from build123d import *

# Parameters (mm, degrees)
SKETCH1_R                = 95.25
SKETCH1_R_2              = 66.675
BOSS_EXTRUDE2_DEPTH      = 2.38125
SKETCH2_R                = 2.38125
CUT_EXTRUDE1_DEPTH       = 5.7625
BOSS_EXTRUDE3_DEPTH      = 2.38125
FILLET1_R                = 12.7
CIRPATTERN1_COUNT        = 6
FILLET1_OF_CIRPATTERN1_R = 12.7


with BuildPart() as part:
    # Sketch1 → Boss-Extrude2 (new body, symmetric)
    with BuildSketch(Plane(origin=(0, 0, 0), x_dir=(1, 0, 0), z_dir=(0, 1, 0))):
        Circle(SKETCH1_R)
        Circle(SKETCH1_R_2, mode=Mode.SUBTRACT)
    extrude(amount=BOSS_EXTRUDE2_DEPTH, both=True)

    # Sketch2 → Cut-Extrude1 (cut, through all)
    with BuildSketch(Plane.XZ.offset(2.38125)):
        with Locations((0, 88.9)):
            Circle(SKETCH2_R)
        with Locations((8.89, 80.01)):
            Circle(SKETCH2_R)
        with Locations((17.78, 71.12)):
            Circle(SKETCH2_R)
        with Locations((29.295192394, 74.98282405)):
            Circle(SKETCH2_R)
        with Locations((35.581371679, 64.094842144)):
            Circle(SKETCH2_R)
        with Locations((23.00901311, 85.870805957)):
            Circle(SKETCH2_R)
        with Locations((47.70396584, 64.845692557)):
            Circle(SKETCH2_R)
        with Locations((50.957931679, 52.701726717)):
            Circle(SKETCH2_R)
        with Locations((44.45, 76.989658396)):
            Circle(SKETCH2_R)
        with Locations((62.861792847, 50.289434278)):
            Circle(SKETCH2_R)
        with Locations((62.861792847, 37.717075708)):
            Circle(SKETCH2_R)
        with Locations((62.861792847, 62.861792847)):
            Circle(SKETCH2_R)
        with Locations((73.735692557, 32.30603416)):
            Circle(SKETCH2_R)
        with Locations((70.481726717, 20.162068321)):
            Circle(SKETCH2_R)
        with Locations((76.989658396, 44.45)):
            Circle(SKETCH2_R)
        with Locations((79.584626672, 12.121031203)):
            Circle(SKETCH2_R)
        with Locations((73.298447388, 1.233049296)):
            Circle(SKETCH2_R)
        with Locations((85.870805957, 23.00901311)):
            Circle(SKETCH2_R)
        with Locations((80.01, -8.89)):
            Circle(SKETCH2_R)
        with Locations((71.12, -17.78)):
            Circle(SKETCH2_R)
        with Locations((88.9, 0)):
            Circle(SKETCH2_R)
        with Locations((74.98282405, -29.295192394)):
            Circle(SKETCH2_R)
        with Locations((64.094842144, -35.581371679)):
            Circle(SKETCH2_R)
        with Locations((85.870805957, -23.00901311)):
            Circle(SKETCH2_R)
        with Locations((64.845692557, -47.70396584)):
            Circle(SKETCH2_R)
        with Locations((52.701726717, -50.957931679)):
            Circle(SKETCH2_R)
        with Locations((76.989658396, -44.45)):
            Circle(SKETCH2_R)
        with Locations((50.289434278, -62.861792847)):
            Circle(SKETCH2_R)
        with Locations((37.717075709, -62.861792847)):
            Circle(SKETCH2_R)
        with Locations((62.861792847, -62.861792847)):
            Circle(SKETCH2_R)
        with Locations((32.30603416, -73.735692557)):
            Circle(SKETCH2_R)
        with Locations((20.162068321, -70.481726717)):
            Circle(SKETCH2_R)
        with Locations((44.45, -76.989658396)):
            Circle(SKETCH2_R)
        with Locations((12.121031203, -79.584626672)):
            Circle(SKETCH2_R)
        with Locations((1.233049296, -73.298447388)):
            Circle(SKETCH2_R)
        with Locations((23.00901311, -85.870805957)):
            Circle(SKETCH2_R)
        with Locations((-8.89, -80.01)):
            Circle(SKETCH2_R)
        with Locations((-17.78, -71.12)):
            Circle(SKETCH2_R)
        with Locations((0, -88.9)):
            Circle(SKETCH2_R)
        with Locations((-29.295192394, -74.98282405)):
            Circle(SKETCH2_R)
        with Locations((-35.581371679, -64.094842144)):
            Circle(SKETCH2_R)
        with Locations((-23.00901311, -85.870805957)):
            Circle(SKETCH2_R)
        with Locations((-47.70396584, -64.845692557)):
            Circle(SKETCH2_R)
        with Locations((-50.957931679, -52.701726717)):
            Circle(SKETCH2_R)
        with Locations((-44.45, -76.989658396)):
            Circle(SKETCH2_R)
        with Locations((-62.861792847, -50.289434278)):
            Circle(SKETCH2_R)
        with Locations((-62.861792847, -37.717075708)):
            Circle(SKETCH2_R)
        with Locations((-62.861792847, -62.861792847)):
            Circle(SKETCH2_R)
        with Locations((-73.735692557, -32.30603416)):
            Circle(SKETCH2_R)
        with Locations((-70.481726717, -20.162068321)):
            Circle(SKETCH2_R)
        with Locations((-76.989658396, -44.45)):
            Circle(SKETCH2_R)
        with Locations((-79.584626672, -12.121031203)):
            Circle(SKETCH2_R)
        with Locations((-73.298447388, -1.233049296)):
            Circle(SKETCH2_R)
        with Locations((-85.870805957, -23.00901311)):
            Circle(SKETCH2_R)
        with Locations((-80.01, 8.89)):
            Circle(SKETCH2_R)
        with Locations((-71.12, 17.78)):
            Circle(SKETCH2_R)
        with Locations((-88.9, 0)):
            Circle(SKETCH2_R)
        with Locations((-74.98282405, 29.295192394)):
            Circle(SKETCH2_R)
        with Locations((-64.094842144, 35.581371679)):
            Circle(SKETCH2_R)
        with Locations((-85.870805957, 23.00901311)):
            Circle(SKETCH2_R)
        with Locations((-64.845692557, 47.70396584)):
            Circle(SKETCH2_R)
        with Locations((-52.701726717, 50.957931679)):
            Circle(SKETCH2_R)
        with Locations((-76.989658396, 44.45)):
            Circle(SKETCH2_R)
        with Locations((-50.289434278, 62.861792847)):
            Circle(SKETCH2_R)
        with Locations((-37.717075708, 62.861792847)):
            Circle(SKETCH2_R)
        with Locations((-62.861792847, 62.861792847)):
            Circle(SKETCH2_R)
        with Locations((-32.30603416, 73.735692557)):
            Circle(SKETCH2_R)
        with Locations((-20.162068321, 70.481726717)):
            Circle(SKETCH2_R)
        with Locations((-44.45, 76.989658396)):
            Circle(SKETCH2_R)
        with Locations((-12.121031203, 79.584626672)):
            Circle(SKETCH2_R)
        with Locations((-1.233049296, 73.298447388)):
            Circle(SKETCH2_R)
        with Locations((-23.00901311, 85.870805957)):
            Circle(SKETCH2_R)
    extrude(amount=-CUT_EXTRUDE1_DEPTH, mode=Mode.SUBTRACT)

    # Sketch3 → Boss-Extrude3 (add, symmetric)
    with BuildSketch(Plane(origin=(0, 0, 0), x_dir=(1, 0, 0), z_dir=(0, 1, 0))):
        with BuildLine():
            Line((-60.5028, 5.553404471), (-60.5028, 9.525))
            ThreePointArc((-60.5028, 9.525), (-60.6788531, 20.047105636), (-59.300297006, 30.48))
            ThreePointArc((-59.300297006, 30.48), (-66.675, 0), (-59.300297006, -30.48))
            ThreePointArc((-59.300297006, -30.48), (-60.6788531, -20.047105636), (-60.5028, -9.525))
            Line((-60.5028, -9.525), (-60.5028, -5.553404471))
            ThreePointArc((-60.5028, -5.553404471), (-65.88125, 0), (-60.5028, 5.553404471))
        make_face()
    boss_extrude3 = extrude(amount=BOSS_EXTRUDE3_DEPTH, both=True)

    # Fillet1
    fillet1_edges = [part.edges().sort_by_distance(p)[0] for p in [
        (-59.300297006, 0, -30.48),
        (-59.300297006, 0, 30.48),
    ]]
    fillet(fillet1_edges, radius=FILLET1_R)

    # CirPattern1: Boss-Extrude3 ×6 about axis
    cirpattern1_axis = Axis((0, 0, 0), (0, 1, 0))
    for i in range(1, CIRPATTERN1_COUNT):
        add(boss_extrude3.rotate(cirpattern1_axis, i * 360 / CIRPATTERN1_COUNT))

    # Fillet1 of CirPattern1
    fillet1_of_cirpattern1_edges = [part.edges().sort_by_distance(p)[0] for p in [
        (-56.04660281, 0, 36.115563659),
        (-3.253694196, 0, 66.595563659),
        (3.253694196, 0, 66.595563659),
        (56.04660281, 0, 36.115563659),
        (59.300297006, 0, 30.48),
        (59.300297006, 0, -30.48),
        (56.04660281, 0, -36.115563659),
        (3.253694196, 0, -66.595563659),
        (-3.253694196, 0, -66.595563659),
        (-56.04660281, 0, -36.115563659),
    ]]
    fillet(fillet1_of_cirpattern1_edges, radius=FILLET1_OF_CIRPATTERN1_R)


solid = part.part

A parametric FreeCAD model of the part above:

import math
import FreeCAD as App
import Part
import Sketcher

V = App.Vector
Q = App.Units.Quantity


def edges_at(feature, points):
    """Names of the edges that pass closest to the given points."""
    edges = feature.Shape.Edges
    near = lambda p: min(range(len(edges)), key=lambda i: edges[i].distToShape(Part.Vertex(*p))[0])
    return sorted({f"Edge{near(p) + 1}" for p in points})

doc = App.newDocument("Part")
params = doc.addObject("Spreadsheet::Sheet", "Params")
for row, (alias, value) in enumerate([
    ("sketch1_diameter", "7.5 in"),
    ("sketch1_diameter2", "5.25 in"),
    ("pad1_length", "0.1875 in"),
    ("sketch2_diameter", "0.1875 in"),
    ("sketch3_radius", "2.8 in"),
    ("sketch3_radius2", "2.625 in"),
    ("sketch3_radius3", "0.21875 in"),
    ("pad2_length", "0.1875 in"),
    ("fillet_radius", "0.5 in"),
    ("fillet2_radius", "0.5 in"),
], start=1):
    params.set(f"A{row}", alias)
    params.set(f"B{row}", "=" + value)
    params.setAlias(f"B{row}", alias)

body = doc.addObject("PartDesign::Body", "Body")

# Sketch on XZ plane
sketch1 = doc.addObject("Sketcher::SketchObject", "Sketch")
body.addObject(sketch1)
sketch1.AttachmentSupport = (doc.XZ_Plane, [""])
sketch1.MapMode = "FlatFace"
sketch1.addGeometry([
    Part.Circle(V(0, 0, 0), V(0, 0, 1), 95.25),
    Part.Circle(V(0, 0, 0), V(0, 0, 1), 66.675),
], False)
sketch1.addConstraint([
    Sketcher.Constraint("Coincident", 0, 3, -1, 1),
    Sketcher.Constraint("Coincident", 1, 3, -1, 1),
    Sketcher.Constraint("Diameter", 0, Q("7.5 in")),
    Sketcher.Constraint("Diameter", 1, Q("5.25 in")),
])
sketch1.setExpression("Constraints[2]", "Params.sketch1_diameter")
sketch1.setExpression("Constraints[3]", "Params.sketch1_diameter2")
pad1 = doc.addObject("PartDesign::Pad", "Pad")
body.addObject(pad1)
pad1.Profile = sketch1
pad1.setExpression("Length", "Params.pad1_length")
pad1.Midplane = True

# Sketch on XZ plane
sketch2 = doc.addObject("Sketcher::SketchObject", "Sketch001")
body.addObject(sketch2)
sketch2.AttachmentSupport = (doc.XZ_Plane, [""])
sketch2.MapMode = "FlatFace"
sketch2.AttachmentOffset = App.Placement(V(0, 0, 0.09375 * 25.4), App.Rotation())
sketch2.addGeometry([
    Part.Circle(V(0, 88.9, 0), V(0, 0, 1), 2.38125),  # 0
    Part.Circle(V(8.89, 80.01, 0), V(0, 0, 1), 2.38125),  # 1
    Part.Circle(V(17.78, 71.12, 0), V(0, 0, 1), 2.38125),  # 2
    Part.Circle(V(29.295192, 74.982824, 0), V(0, 0, 1), 2.38125),  # 3
    Part.Circle(V(35.581372, 64.094842, 0), V(0, 0, 1), 2.38125),  # 4
    Part.Circle(V(23.009013, 85.870806, 0), V(0, 0, 1), 2.38125),  # 5
    Part.Circle(V(47.703966, 64.845693, 0), V(0, 0, 1), 2.38125),  # 6
    Part.Circle(V(50.957932, 52.701727, 0), V(0, 0, 1), 2.38125),  # 7
    Part.Circle(V(44.45, 76.989658, 0), V(0, 0, 1), 2.38125),  # 8
    Part.Circle(V(62.861793, 50.289434, 0), V(0, 0, 1), 2.38125),  # 9
    Part.Circle(V(62.861793, 37.717076, 0), V(0, 0, 1), 2.38125),  # 10
    Part.Circle(V(62.861793, 62.861793, 0), V(0, 0, 1), 2.38125),  # 11
    Part.Circle(V(73.735693, 32.306034, 0), V(0, 0, 1), 2.38125),  # 12
    Part.Circle(V(70.481727, 20.162068, 0), V(0, 0, 1), 2.38125),  # 13
    Part.Circle(V(76.989658, 44.45, 0), V(0, 0, 1), 2.38125),  # 14
    Part.Circle(V(79.584627, 12.121031, 0), V(0, 0, 1), 2.38125),  # 15
    Part.Circle(V(73.298447, 1.233049, 0), V(0, 0, 1), 2.38125),  # 16
    Part.Circle(V(85.870806, 23.009013, 0), V(0, 0, 1), 2.38125),  # 17
    Part.Circle(V(80.01, -8.89, 0), V(0, 0, 1), 2.38125),  # 18
    Part.Circle(V(71.12, -17.78, 0), V(0, 0, 1), 2.38125),  # 19
    Part.Circle(V(88.9, 0, 0), V(0, 0, 1), 2.38125),  # 20
    Part.Circle(V(74.982824, -29.295192, 0), V(0, 0, 1), 2.38125),  # 21
    Part.Circle(V(64.094842, -35.581372, 0), V(0, 0, 1), 2.38125),  # 22
    Part.Circle(V(85.870806, -23.009013, 0), V(0, 0, 1), 2.38125),  # 23
    Part.Circle(V(64.845693, -47.703966, 0), V(0, 0, 1), 2.38125),  # 24
    Part.Circle(V(52.701727, -50.957932, 0), V(0, 0, 1), 2.38125),  # 25
    Part.Circle(V(76.989658, -44.45, 0), V(0, 0, 1), 2.38125),  # 26
    Part.Circle(V(50.289434, -62.861793, 0), V(0, 0, 1), 2.38125),  # 27
    Part.Circle(V(37.717076, -62.861793, 0), V(0, 0, 1), 2.38125),  # 28
    Part.Circle(V(62.861793, -62.861793, 0), V(0, 0, 1), 2.38125),  # 29
    Part.Circle(V(32.306034, -73.735693, 0), V(0, 0, 1), 2.38125),  # 30
    Part.Circle(V(20.162068, -70.481727, 0), V(0, 0, 1), 2.38125),  # 31
    Part.Circle(V(44.45, -76.989658, 0), V(0, 0, 1), 2.38125),  # 32
    Part.Circle(V(12.121031, -79.584627, 0), V(0, 0, 1), 2.38125),  # 33
    Part.Circle(V(1.233049, -73.298447, 0), V(0, 0, 1), 2.38125),  # 34
    Part.Circle(V(23.009013, -85.870806, 0), V(0, 0, 1), 2.38125),  # 35
    Part.Circle(V(-8.89, -80.01, 0), V(0, 0, 1), 2.38125),  # 36
    Part.Circle(V(-17.78, -71.12, 0), V(0, 0, 1), 2.38125),  # 37
    Part.Circle(V(0, -88.9, 0), V(0, 0, 1), 2.38125),  # 38
    Part.Circle(V(-29.295192, -74.982824, 0), V(0, 0, 1), 2.38125),  # 39
    Part.Circle(V(-35.581372, -64.094842, 0), V(0, 0, 1), 2.38125),  # 40
    Part.Circle(V(-23.009013, -85.870806, 0), V(0, 0, 1), 2.38125),  # 41
    Part.Circle(V(-47.703966, -64.845693, 0), V(0, 0, 1), 2.38125),  # 42
    Part.Circle(V(-50.957932, -52.701727, 0), V(0, 0, 1), 2.38125),  # 43
    Part.Circle(V(-44.45, -76.989658, 0), V(0, 0, 1), 2.38125),  # 44
    Part.Circle(V(-62.861793, -50.289434, 0), V(0, 0, 1), 2.38125),  # 45
    Part.Circle(V(-62.861793, -37.717076, 0), V(0, 0, 1), 2.38125),  # 46
    Part.Circle(V(-62.861793, -62.861793, 0), V(0, 0, 1), 2.38125),  # 47
    Part.Circle(V(-73.735693, -32.306034, 0), V(0, 0, 1), 2.38125),  # 48
    Part.Circle(V(-70.481727, -20.162068, 0), V(0, 0, 1), 2.38125),  # 49
    Part.Circle(V(-76.989658, -44.45, 0), V(0, 0, 1), 2.38125),  # 50
    Part.Circle(V(-79.584627, -12.121031, 0), V(0, 0, 1), 2.38125),  # 51
    Part.Circle(V(-73.298447, -1.233049, 0), V(0, 0, 1), 2.38125),  # 52
    Part.Circle(V(-85.870806, -23.009013, 0), V(0, 0, 1), 2.38125),  # 53
    Part.Circle(V(-80.01, 8.89, 0), V(0, 0, 1), 2.38125),  # 54
    Part.Circle(V(-71.12, 17.78, 0), V(0, 0, 1), 2.38125),  # 55
    Part.Circle(V(-88.9, 0, 0), V(0, 0, 1), 2.38125),  # 56
    Part.Circle(V(-74.982824, 29.295192, 0), V(0, 0, 1), 2.38125),  # 57
    Part.Circle(V(-64.094842, 35.581372, 0), V(0, 0, 1), 2.38125),  # 58
    Part.Circle(V(-85.870806, 23.009013, 0), V(0, 0, 1), 2.38125),  # 59
    Part.Circle(V(-64.845693, 47.703966, 0), V(0, 0, 1), 2.38125),  # 60
    Part.Circle(V(-52.701727, 50.957932, 0), V(0, 0, 1), 2.38125),  # 61
    Part.Circle(V(-76.989658, 44.45, 0), V(0, 0, 1), 2.38125),  # 62
    Part.Circle(V(-50.289434, 62.861793, 0), V(0, 0, 1), 2.38125),  # 63
    Part.Circle(V(-37.717076, 62.861793, 0), V(0, 0, 1), 2.38125),  # 64
    Part.Circle(V(-62.861793, 62.861793, 0), V(0, 0, 1), 2.38125),  # 65
    Part.Circle(V(-32.306034, 73.735693, 0), V(0, 0, 1), 2.38125),  # 66
    Part.Circle(V(-20.162068, 70.481727, 0), V(0, 0, 1), 2.38125),  # 67
    Part.Circle(V(-44.45, 76.989658, 0), V(0, 0, 1), 2.38125),  # 68
    Part.Circle(V(-12.121031, 79.584627, 0), V(0, 0, 1), 2.38125),  # 69
    Part.Circle(V(-1.233049, 73.298447, 0), V(0, 0, 1), 2.38125),  # 70
    Part.Circle(V(-23.009013, 85.870806, 0), V(0, 0, 1), 2.38125),  # 71
], False)
sketch2.addConstraint([
    Sketcher.Constraint("Equal", 0, 1),
    Sketcher.Constraint("Equal", 1, 2),
    Sketcher.Constraint("Equal", 2, 3),
    Sketcher.Constraint("Equal", 3, 4),
    Sketcher.Constraint("Equal", 4, 5),
    Sketcher.Constraint("Equal", 5, 6),
    Sketcher.Constraint("Equal", 6, 7),
    Sketcher.Constraint("Equal", 7, 8),
    Sketcher.Constraint("Equal", 8, 9),
    Sketcher.Constraint("Equal", 9, 10),
    Sketcher.Constraint("Equal", 10, 11),
    Sketcher.Constraint("Equal", 11, 12),
    Sketcher.Constraint("Equal", 12, 13),
    Sketcher.Constraint("Equal", 13, 14),
    Sketcher.Constraint("Equal", 14, 15),
    Sketcher.Constraint("Equal", 15, 16),
    Sketcher.Constraint("Equal", 16, 17),
    Sketcher.Constraint("Equal", 17, 18),
    Sketcher.Constraint("Equal", 18, 19),
    Sketcher.Constraint("Equal", 19, 20),
    Sketcher.Constraint("Equal", 20, 21),
    Sketcher.Constraint("Equal", 21, 22),
    Sketcher.Constraint("Equal", 22, 23),
    Sketcher.Constraint("Equal", 23, 24),
    Sketcher.Constraint("Equal", 24, 25),
    Sketcher.Constraint("Equal", 25, 26),
    Sketcher.Constraint("Equal", 26, 27),
    Sketcher.Constraint("Equal", 27, 28),
    Sketcher.Constraint("Equal", 28, 29),
    Sketcher.Constraint("Equal", 29, 30),
    Sketcher.Constraint("Equal", 30, 31),
    Sketcher.Constraint("Equal", 31, 32),
    Sketcher.Constraint("Equal", 32, 33),
    Sketcher.Constraint("Equal", 33, 34),
    Sketcher.Constraint("Equal", 34, 35),
    Sketcher.Constraint("Equal", 35, 36),
    Sketcher.Constraint("Equal", 36, 37),
    Sketcher.Constraint("Equal", 37, 38),
    Sketcher.Constraint("Equal", 38, 39),
    Sketcher.Constraint("Equal", 39, 40),
    Sketcher.Constraint("Equal", 40, 41),
    Sketcher.Constraint("Equal", 41, 42),
    Sketcher.Constraint("Equal", 42, 43),
    Sketcher.Constraint("Equal", 43, 44),
    Sketcher.Constraint("Equal", 44, 45),
    Sketcher.Constraint("Equal", 45, 46),
    Sketcher.Constraint("Equal", 46, 47),
    Sketcher.Constraint("Equal", 47, 48),
    Sketcher.Constraint("Equal", 48, 49),
    Sketcher.Constraint("Equal", 49, 50),
    Sketcher.Constraint("Equal", 50, 51),
    Sketcher.Constraint("Equal", 51, 52),
    Sketcher.Constraint("Equal", 52, 53),
    Sketcher.Constraint("Equal", 53, 54),
    Sketcher.Constraint("Equal", 54, 55),
    Sketcher.Constraint("Equal", 55, 56),
    Sketcher.Constraint("Equal", 56, 57),
    Sketcher.Constraint("Equal", 57, 58),
    Sketcher.Constraint("Equal", 58, 59),
    Sketcher.Constraint("Equal", 59, 60),
    Sketcher.Constraint("Equal", 60, 61),
    Sketcher.Constraint("Equal", 61, 62),
    Sketcher.Constraint("Equal", 62, 63),
    Sketcher.Constraint("Equal", 63, 64),
    Sketcher.Constraint("Equal", 64, 65),
    Sketcher.Constraint("Equal", 65, 66),
    Sketcher.Constraint("Equal", 66, 67),
    Sketcher.Constraint("Equal", 67, 68),
    Sketcher.Constraint("Equal", 68, 69),
    Sketcher.Constraint("Equal", 69, 70),
    Sketcher.Constraint("Equal", 70, 71),
    Sketcher.Constraint("Symmetric", 1, 3, 36, 3, -1, 1),
    Sketcher.Constraint("Symmetric", 2, 3, 37, 3, -1, 1),
    Sketcher.Constraint("Symmetric", 0, 3, 38, 3, -1, 1),
    Sketcher.Constraint("Symmetric", 3, 3, 39, 3, -1, 1),
    Sketcher.Constraint("Symmetric", 4, 3, 40, 3, -1, 1),
    Sketcher.Constraint("Symmetric", 5, 3, 41, 3, -1, 1),
    Sketcher.Constraint("Symmetric", 6, 3, 42, 3, -1, 1),
    Sketcher.Constraint("Symmetric", 7, 3, 43, 3, -1, 1),
    Sketcher.Constraint("Symmetric", 8, 3, 44, 3, -1, 1),
    Sketcher.Constraint("Symmetric", 9, 3, 45, 3, -1, 1),
    Sketcher.Constraint("Symmetric", 10, 3, 46, 3, -1, 1),
    Sketcher.Constraint("Symmetric", 11, 3, 47, 3, -1, 1),
    Sketcher.Constraint("Symmetric", 12, 3, 48, 3, -1, 1),
    Sketcher.Constraint("Symmetric", 13, 3, 49, 3, -1, 1),
    Sketcher.Constraint("Symmetric", 14, 3, 50, 3, -1, 1),
    Sketcher.Constraint("Symmetric", 15, 3, 51, 3, -1, 1),
    Sketcher.Constraint("Symmetric", 16, 3, 52, 3, -1, 1),
    Sketcher.Constraint("Symmetric", 17, 3, 53, 3, -1, 1),
    Sketcher.Constraint("Symmetric", 18, 3, 54, 3, -1, 1),
    Sketcher.Constraint("Symmetric", 19, 3, 55, 3, -1, 1),
    Sketcher.Constraint("Symmetric", 20, 3, 56, 3, -1, 1),
    Sketcher.Constraint("Symmetric", 21, 3, 57, 3, -1, 1),
    Sketcher.Constraint("Symmetric", 22, 3, 58, 3, -1, 1),
    Sketcher.Constraint("Symmetric", 23, 3, 59, 3, -1, 1),
    Sketcher.Constraint("Symmetric", 24, 3, 60, 3, -1, 1),
    Sketcher.Constraint("Symmetric", 25, 3, 61, 3, -1, 1),
    Sketcher.Constraint("Symmetric", 26, 3, 62, 3, -1, 1),
    Sketcher.Constraint("Symmetric", 27, 3, 63, 3, -1, 1),
    Sketcher.Constraint("Symmetric", 28, 3, 64, 3, -1, 1),
    Sketcher.Constraint("Symmetric", 29, 3, 65, 3, -1, 1),
    Sketcher.Constraint("Symmetric", 30, 3, 66, 3, -1, 1),
    Sketcher.Constraint("Symmetric", 31, 3, 67, 3, -1, 1),
    Sketcher.Constraint("Symmetric", 32, 3, 68, 3, -1, 1),
    Sketcher.Constraint("Symmetric", 33, 3, 69, 3, -1, 1),
    Sketcher.Constraint("Symmetric", 34, 3, 70, 3, -1, 1),
    Sketcher.Constraint("Symmetric", 35, 3, 71, 3, -1, 1),
    Sketcher.Constraint("Symmetric", 35, 3, 41, 3, -2),
    Sketcher.Constraint("Symmetric", 32, 3, 44, 3, -2),
    Sketcher.Constraint("Symmetric", 29, 3, 47, 3, -2),
    Sketcher.Constraint("Symmetric", 26, 3, 50, 3, -2),
    Sketcher.Constraint("Symmetric", 23, 3, 53, 3, -2),
    Sketcher.Constraint("PointOnObject", 0, 3, -2),
    Sketcher.Constraint("PointOnObject", 20, 3, -1),
    Sketcher.Constraint("Horizontal", 27, 3, 28, 3),
    Sketcher.Constraint("Horizontal", 28, 3, 29, 3),
    Sketcher.Constraint("Vertical", 9, 3, 10, 3),
    Sketcher.Constraint("Vertical", 10, 3, 11, 3),
    Sketcher.Constraint("Diameter", 0, Q("0.1875 in")),
    Sketcher.Constraint("DistanceY", -1, 1, 0, 3, Q("3.5 in")),
    Sketcher.Constraint("DistanceX", -1, 1, 2, 3, Q("0.7 in")),
    Sketcher.Constraint("DistanceY", -1, 1, 2, 3, Q("2.8 in")),
    Sketcher.Constraint("DistanceX", -1, 1, 19, 3, Q("2.8 in")),
    Sketcher.Constraint("DistanceY", 19, 3, -1, 1, Q("0.7 in")),
    Sketcher.Constraint("DistanceX", -1, 1, 20, 3, Q("3.5 in")),
    Sketcher.Constraint("DistanceX", -1, 1, 1, 3, Q("0.35 in")),
    Sketcher.Constraint("DistanceY", -1, 1, 1, 3, Q("3.15 in")),
    Sketcher.Constraint("DistanceX", -1, 1, 8, 3, Q("1.75 in")),
    Sketcher.Constraint("DistanceY", -1, 1, 14, 3, Q("1.75 in")),
    Sketcher.Constraint("DistanceX", -1, 1, 18, 3, Q("3.15 in")),
    Sketcher.Constraint("DistanceY", 18, 3, -1, 1, Q("0.35 in")),
    Sketcher.Constraint("DistanceX", -1, 1, 4, 3, 35.581372),
    Sketcher.Constraint("DistanceX", -1, 1, 7, 3, 50.957932),
    Sketcher.Constraint("DistanceY", -1, 1, 8, 3, 76.989658),
    Sketcher.Constraint("DistanceY", -1, 1, 13, 3, 20.162068),
    Sketcher.Constraint("DistanceX", -1, 1, 14, 3, 76.989658),
    Sketcher.Constraint("DistanceY", -1, 1, 15, 3, 12.121031),
    Sketcher.Constraint("DistanceY", -1, 1, 16, 3, 1.233049),
    Sketcher.Constraint("DistanceY", 22, 3, -1, 1, 35.581372),
    Sketcher.Constraint("DistanceY", 25, 3, -1, 1, 50.957932),
    Sketcher.Constraint("DistanceX", -1, 1, 31, 3, 20.162068),
    Sketcher.Constraint("DistanceX", -1, 1, 33, 3, 12.121031),
    Sketcher.Constraint("DistanceX", -1, 1, 34, 3, 1.233049),
    Sketcher.Constraint("DistanceX", -1, 1, 3, 3, 29.295192),
    Sketcher.Constraint("DistanceY", -1, 1, 3, 3, 74.982824),
    Sketcher.Constraint("DistanceY", -1, 1, 4, 3, 64.094842),
    Sketcher.Constraint("DistanceX", -1, 1, 5, 3, 23.009013),
    Sketcher.Constraint("DistanceY", -1, 1, 5, 3, 85.870806),
    Sketcher.Constraint("DistanceX", -1, 1, 6, 3, 47.703966),
    Sketcher.Constraint("DistanceY", -1, 1, 6, 3, 64.845693),
    Sketcher.Constraint("DistanceY", -1, 1, 7, 3, 52.701727),
    Sketcher.Constraint("DistanceX", -1, 1, 9, 3, 62.861793),
    Sketcher.Constraint("DistanceY", -1, 1, 9, 3, 50.289434),
    Sketcher.Constraint("DistanceY", -1, 1, 10, 3, 37.717076),
    Sketcher.Constraint("DistanceY", -1, 1, 11, 3, 62.861793),
    Sketcher.Constraint("DistanceX", -1, 1, 12, 3, 73.735693),
    Sketcher.Constraint("DistanceY", -1, 1, 12, 3, 32.306034),
    Sketcher.Constraint("DistanceX", -1, 1, 13, 3, 70.481727),
    Sketcher.Constraint("DistanceX", -1, 1, 15, 3, 79.584627),
    Sketcher.Constraint("DistanceX", -1, 1, 16, 3, 73.298447),
    Sketcher.Constraint("DistanceX", -1, 1, 17, 3, 85.870806),
    Sketcher.Constraint("DistanceY", -1, 1, 17, 3, 23.009013),
    Sketcher.Constraint("DistanceX", -1, 1, 21, 3, 74.982824),
    Sketcher.Constraint("DistanceY", 21, 3, -1, 1, 29.295192),
    Sketcher.Constraint("DistanceX", -1, 1, 22, 3, 64.094842),
    Sketcher.Constraint("DistanceX", -1, 1, 24, 3, 64.845693),
    Sketcher.Constraint("DistanceY", 24, 3, -1, 1, 47.703966),
    Sketcher.Constraint("DistanceX", -1, 1, 25, 3, 52.701727),
    Sketcher.Constraint("DistanceX", -1, 1, 27, 3, 50.289434),
    Sketcher.Constraint("DistanceX", -1, 1, 28, 3, 37.717076),
    Sketcher.Constraint("DistanceX", -1, 1, 30, 3, 32.306034),
    Sketcher.Constraint("DistanceY", 30, 3, -1, 1, 73.735693),
    Sketcher.Constraint("DistanceY", 31, 3, -1, 1, 70.481727),
    Sketcher.Constraint("DistanceY", 33, 3, -1, 1, 79.584627),
    Sketcher.Constraint("DistanceY", 34, 3, -1, 1, 73.298447),
])
sketch2.setExpression("Constraints[118]", "Params.sketch2_diameter")
pocket1 = doc.addObject("PartDesign::Pocket", "Pocket")
body.addObject(pocket1)
pocket1.Profile = sketch2
pocket1.Type = "ThroughAll"

# Sketch on XZ plane
sketch3 = doc.addObject("Sketcher::SketchObject", "Sketch002")
body.addObject(sketch3)
sketch3.AttachmentSupport = (doc.XZ_Plane, [""])
sketch3.MapMode = "FlatFace"
sketch3.addGeometry([
    Part.LineSegment(V(-60.5028, -5.553404, 0), V(-60.5028, -9.525, 0)),  # 0
    Part.ArcOfCircle(Part.Circle(V(10.324335, -15.972587, 0), V(0, 0, 1), 71.12), math.radians(174.798546), math.radians(191.770089)),  # 1
    Part.ArcOfCircle(Part.Circle(V(0, 0, 0), V(0, 0, 1), 66.675), math.radians(152.797106), math.radians(207.202894)),  # 2
    Part.ArcOfCircle(Part.Circle(V(10.324335, 15.972587, 0), V(0, 0, 1), 71.12), math.radians(168.229911), math.radians(185.201454)),  # 3
    Part.LineSegment(V(-60.5028, 9.525, 0), V(-60.5028, 5.553404, 0)),  # 4
    Part.ArcOfCircle(Part.Circle(V(-60.325, 0, 0), V(0, 0, 1), 5.55625), math.radians(91.833778), math.radians(268.166222)),  # 5
], False)
sketch3.addConstraint([
    Sketcher.Constraint("Coincident", 0, 2, 1, 1),
    Sketcher.Constraint("Coincident", 1, 2, 2, 2),
    Sketcher.Constraint("Coincident", 2, 1, 3, 1),
    Sketcher.Constraint("Coincident", 3, 2, 4, 1),
    Sketcher.Constraint("Coincident", 4, 2, 5, 1),
    Sketcher.Constraint("Coincident", 5, 2, 0, 1),
    Sketcher.Constraint("Vertical", 0),
    Sketcher.Constraint("Vertical", 4),
    Sketcher.Constraint("Coincident", 2, 3, -1, 1),
    Sketcher.Constraint("Equal", 1, 3),
    Sketcher.Constraint("Symmetric", 1, 3, 3, 3, -1),
    Sketcher.Constraint("Symmetric", 4, 2, 5, 2, -1),
    Sketcher.Constraint("Radius", 1, Q("2.8 in")),
    Sketcher.Constraint("Radius", 2, Q("2.625 in")),
    Sketcher.Constraint("Radius", 5, Q("0.21875 in")),
    Sketcher.Constraint("DistanceY", 1, 2, -1, 1, Q("1.2 in")),
    Sketcher.Constraint("DistanceY", 0, 2, 3, 2, Q("0.75 in")),
    Sketcher.Constraint("DistanceX", 5, 3, -1, 1, Q("2.375 in")),
    Sketcher.Constraint("DistanceX", 0, 2, -1, 1, Q("2.382 in")),
])
sketch3.setExpression("Constraints[12]", "Params.sketch3_radius")
sketch3.setExpression("Constraints[13]", "Params.sketch3_radius2")
sketch3.setExpression("Constraints[14]", "Params.sketch3_radius3")
pad2 = doc.addObject("PartDesign::Pad", "Pad001")
body.addObject(pad2)
pad2.Profile = sketch3
pad2.setExpression("Length", "Params.pad2_length")
pad2.Midplane = True
doc.recompute()

fillet = doc.addObject("PartDesign::Fillet", "Fillet")
body.addObject(fillet)
fillet.Base = (pad2, edges_at(pad2, [(-59.3, 0, -30.48), (-59.3, 0, 30.48)]))
fillet.setExpression("Radius", "Params.fillet_radius")
doc.recompute()

polarpattern = doc.addObject("PartDesign::PolarPattern", "PolarPattern")
body.addObject(polarpattern)
polarpattern.Originals = [pad2]
polarpattern.Axis = (doc.Y_Axis, [""])
polarpattern.Angle = 360
polarpattern.Occurrences = 6
body.Tip = polarpattern
doc.recompute()

fillet2 = doc.addObject("PartDesign::Fillet", "Fillet001")
body.addObject(fillet2)
fillet2.Base = (polarpattern, edges_at(polarpattern, [
    (-56.047, 0, 36.116),
    (-3.254, 0, 66.596),
    (3.254, 0, 66.596),
    (56.047, 0, 36.116),
    (59.3, 0, 30.48),
    (59.3, 0, -30.48),
    (56.047, 0, -36.116),
    (3.254, 0, -66.596),
    (-3.254, 0, -66.596),
    (-56.047, 0, -36.116),
]))
fillet2.setExpression("Radius", "Params.fillet2_radius")

doc.recompute()
